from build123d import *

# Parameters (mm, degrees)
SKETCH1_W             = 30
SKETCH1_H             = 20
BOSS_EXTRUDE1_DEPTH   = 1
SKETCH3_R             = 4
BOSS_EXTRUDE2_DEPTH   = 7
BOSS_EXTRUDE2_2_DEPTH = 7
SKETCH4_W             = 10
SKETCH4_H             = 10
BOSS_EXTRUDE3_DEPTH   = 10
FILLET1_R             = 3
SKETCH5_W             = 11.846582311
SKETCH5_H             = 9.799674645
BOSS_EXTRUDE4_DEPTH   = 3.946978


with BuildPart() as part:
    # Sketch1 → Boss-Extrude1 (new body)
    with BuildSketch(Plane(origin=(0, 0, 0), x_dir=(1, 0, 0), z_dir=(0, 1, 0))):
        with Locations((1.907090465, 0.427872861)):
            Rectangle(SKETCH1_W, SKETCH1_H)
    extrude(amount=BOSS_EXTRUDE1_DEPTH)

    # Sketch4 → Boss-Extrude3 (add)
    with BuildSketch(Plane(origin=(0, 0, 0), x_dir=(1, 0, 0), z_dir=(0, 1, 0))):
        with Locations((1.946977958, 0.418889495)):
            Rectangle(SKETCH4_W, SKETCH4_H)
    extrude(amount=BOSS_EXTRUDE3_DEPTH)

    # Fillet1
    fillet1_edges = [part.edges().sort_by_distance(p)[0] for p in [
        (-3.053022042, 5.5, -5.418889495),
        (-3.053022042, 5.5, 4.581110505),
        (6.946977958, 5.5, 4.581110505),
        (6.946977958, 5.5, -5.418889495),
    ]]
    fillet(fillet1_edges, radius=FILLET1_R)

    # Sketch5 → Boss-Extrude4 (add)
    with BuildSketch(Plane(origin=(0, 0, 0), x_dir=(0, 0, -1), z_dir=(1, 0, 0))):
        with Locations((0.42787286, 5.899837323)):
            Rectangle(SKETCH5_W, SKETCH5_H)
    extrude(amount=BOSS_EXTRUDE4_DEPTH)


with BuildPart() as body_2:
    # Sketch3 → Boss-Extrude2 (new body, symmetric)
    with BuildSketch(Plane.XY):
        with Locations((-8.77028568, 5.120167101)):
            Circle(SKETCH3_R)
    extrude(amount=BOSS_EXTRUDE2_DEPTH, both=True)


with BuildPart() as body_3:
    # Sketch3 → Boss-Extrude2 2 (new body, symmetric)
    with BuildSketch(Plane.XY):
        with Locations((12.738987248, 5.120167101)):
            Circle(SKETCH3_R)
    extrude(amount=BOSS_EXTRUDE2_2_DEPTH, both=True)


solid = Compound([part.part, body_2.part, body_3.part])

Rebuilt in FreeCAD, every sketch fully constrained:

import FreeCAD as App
import Part
import Sketcher


def edges_at(feature, points):
    """Names of the edges that pass closest to the given points."""
    edges = feature.Shape.Edges
    near = lambda p: min(range(len(edges)), key=lambda i: edges[i].distToShape(Part.Vertex(*p))[0])
    return sorted({f"Edge{near(p) + 1}" for p in points})

doc = App.newDocument("Part")
body = doc.addObject("PartDesign::Body", "Body")

# Sketch on XZ plane
sketch1 = doc.addObject("Sketcher::SketchObject", "Sketch")
body.addObject(sketch1)
sketch1.AttachmentSupport = (doc.XZ_Plane, [""])
sketch1.MapMode = "FlatFace"
sketch1.addGeometry(Part.LineSegment(App.Vector(-13.09291, -10.427873, 0), App.Vector(-13.09291, 9.572127, 0)), False)
sketch1.addGeometry(Part.LineSegment(App.Vector(-13.09291, 9.572127, 0), App.Vector(16.90709, 9.572127, 0)), False)
sketch1.addGeometry(Part.LineSegment(App.Vector(16.90709, 9.572127, 0), App.Vector(16.90709, -10.427873, 0)), False)
sketch1.addGeometry(Part.LineSegment(App.Vector(16.90709, -10.427873, 0), App.Vector(-13.09291, -10.427873, 0)), False)
sketch1.addConstraint(Sketcher.Constraint("Coincident", 0, 2, 1, 1))
sketch1.addConstraint(Sketcher.Constraint("Coincident", 1, 2, 2, 1))
sketch1.addConstraint(Sketcher.Constraint("Coincident", 2, 2, 3, 1))
sketch1.addConstraint(Sketcher.Constraint("Coincident", 3, 2, 0, 1))
sketch1.addConstraint(Sketcher.Constraint("Vertical", 0))
sketch1.addConstraint(Sketcher.Constraint("Horizontal", 1))
sketch1.addConstraint(Sketcher.Constraint("Vertical", 2))
sketch1.addConstraint(Sketcher.Constraint("Horizontal", 3))
sketch1.addConstraint(Sketcher.Constraint("DistanceX", 1, 1, 1, 2, 30.0))
sketch1.addConstraint(Sketcher.Constraint("DistanceY", 0, 1, 0, 2, 20.0))
sketch1.addConstraint(Sketcher.Constraint("DistanceX", 0, 2, -1, 1, 13.09291))
sketch1.addConstraint(Sketcher.Constraint("DistanceY", -1, 1, 0, 2, 9.572127))
pad1 = doc.addObject("PartDesign::Pad", "Pad")
body.addObject(pad1)
pad1.Profile = sketch1
pad1.Length = 1
pad1.Reversed = True

# Sketch on XZ plane
sketch2 = doc.addObject("Sketcher::SketchObject", "Sketch001")
body.addObject(sketch2)
sketch2.AttachmentSupport = (doc.XZ_Plane, [""])
sketch2.MapMode = "FlatFace"
sketch2.addGeometry(Part.LineSegment(App.Vector(-3.053022, -5.418889, 0), App.Vector(-3.053022, 4.581111, 0)), False)
sketch2.addGeometry(Part.LineSegment(App.Vector(-3.053022, 4.581111, 0), App.Vector(6.946978, 4.581111, 0)), False)
sketch2.addGeometry(Part.LineSegment(App.Vector(6.946978, 4.581111, 0), App.Vector(6.946978, -5.418889, 0)), False)
sketch2.addGeometry(Part.LineSegment(App.Vector(6.946978, -5.418889, 0), App.Vector(-3.053022, -5.418889, 0)), False)
sketch2.addConstraint(Sketcher.Constraint("Coincident", 0, 2, 1, 1))
sketch2.addConstraint(Sketcher.Constraint("Coincident", 1, 2, 2, 1))
sketch2.addConstraint(Sketcher.Constraint("Coincident", 2, 2, 3, 1))
sketch2.addConstraint(Sketcher.Constraint("Coincident", 3, 2, 0, 1))
sketch2.addConstraint(Sketcher.Constraint("Vertical", 0))
sketch2.addConstraint(Sketcher.Constraint("Horizontal", 1))
sketch2.addConstraint(Sketcher.Constraint("Vertical", 2))
sketch2.addConstraint(Sketcher.Constraint("Horizontal", 3))
sketch2.addConstraint(Sketcher.Constraint("Equal", 3, 0))
sketch2.addConstraint(Sketcher.Constraint("DistanceX", 1, 1, 1, 2, 10.0))
sketch2.addConstraint(Sketcher.Constraint("DistanceY", -1, 1, 0, 2, 4.581111))
sketch2.addConstraint(Sketcher.Constraint("DistanceX", 0, 2, -1, 1, 3.053022))
pad2 = doc.addObject("PartDesign::Pad", "Pad001")
body.addObject(pad2)
pad2.Profile = sketch2
pad2.Length = 10
pad2.Reversed = True
doc.recompute()

fillet = doc.addObject("PartDesign::Fillet", "Fillet")
body.addObject(fillet)
fillet.Base = (pad2, edges_at(pad2, [
    (-3.053, 5.5, -5.419),
    (-3.053, 5.5, 4.581),
    (6.947, 5.5, 4.581),
    (6.947, 5.5, -5.419),
]))
fillet.Radius = 3

# Sketch on YZ plane
sketch3 = doc.addObject("Sketcher::SketchObject", "Sketch002")
body.addObject(sketch3)
sketch3.AttachmentSupport = (doc.YZ_Plane, [""])
sketch3.MapMode = "FlatFace"
sketch3.addGeometry(Part.LineSegment(App.Vector(10.799675, 5.495418, 0), App.Vector(1, 5.495418, 0)), False)
sketch3.addGeometry(Part.LineSegment(App.Vector(1, 5.495418, 0), App.Vector(1, -6.351164, 0)), False)
sketch3.addGeometry(Part.LineSegment(App.Vector(1, -6.351164, 0), App.Vector(10.799675, -6.351164, 0)), False)
sketch3.addGeometry(Part.LineSegment(App.Vector(10.799675, -6.351164, 0), App.Vector(10.799675, 5.495418, 0)), False)
sketch3.addConstraint(Sketcher.Constraint("Coincident", 0, 2, 1, 1))
sketch3.addConstraint(Sketcher.Constraint("Coincident", 1, 2, 2, 1))
sketch3.addConstraint(Sketcher.Constraint("Coincident", 2, 2, 3, 1))
sketch3.addConstraint(Sketcher.Constraint("Coincident", 3, 2, 0, 1))
sketch3.addConstraint(Sketcher.Constraint("Horizontal", 0))
sketch3.addConstraint(Sketcher.Constraint("Vertical", 1))
sketch3.addConstraint(Sketcher.Constraint("Horizontal", 2))
sketch3.addConstraint(Sketcher.Constraint("Vertical", 3))
sketch3.addConstraint(Sketcher.Constraint("DistanceX", -1, 1, 0, 2, 1.0))
sketch3.addConstraint(Sketcher.Constraint("DistanceX", 0, 2, 0, 1, 9.799675))
sketch3.addConstraint(Sketcher.Constraint("DistanceY", 1, 2, 1, 1, 11.846582))
sketch3.addConstraint(Sketcher.Constraint("DistanceY", -1, 1, 0, 2, 5.495418))
pad3 = doc.addObject("PartDesign::Pad", "Pad002")
body.addObject(pad3)
pad3.Profile = sketch3
pad3.Length = 3.946978
body2 = doc.addObject("PartDesign::Body", "Body001")

# Sketch on XY plane
sketch4 = doc.addObject("Sketcher::SketchObject", "Sketch003")
body2.addObject(sketch4)
sketch4.AttachmentSupport = (doc.getObject("XY_Plane001"), [""])
sketch4.MapMode = "FlatFace"
sketch4.addGeometry(Part.Circle(App.Vector(-8.770286, 5.120167, 0), App.Vector(0, 0, 1), 4), False)
sketch4.addConstraint(Sketcher.Constraint("Diameter", 0, 8.0))
sketch4.addConstraint(Sketcher.Constraint("DistanceX", 0, 3, -1, 1, 8.770286))
sketch4.addConstraint(Sketcher.Constraint("DistanceY", -1, 1, 0, 3, 5.120167))
pad4 = doc.addObject("PartDesign::Pad", "Pad003")
body2.addObject(pad4)
pad4.Profile = sketch4
pad4.Length = 14
pad4.Midplane = True
body3 = doc.addObject("PartDesign::Body", "Body002")

# Sketch on XY plane
sketch5 = doc.addObject("Sketcher::SketchObject", "Sketch004")
body3.addObject(sketch5)
sketch5.AttachmentSupport = (doc.getObject("XY_Plane002"), [""])
sketch5.MapMode = "FlatFace"
sketch5.addGeometry(Part.Circle(App.Vector(12.738987, 5.120167, 0), App.Vector(0, 0, 1), 4), False)
sketch5.addConstraint(Sketcher.Constraint("Diameter", 0, 8.0))
sketch5.addConstraint(Sketcher.Constraint("DistanceX", -1, 1, 0, 3, 12.738987))
sketch5.addConstraint(Sketcher.Constraint("DistanceY", -1, 1, 0, 3, 5.120167))
pad5 = doc.addObject("PartDesign::Pad", "Pad004")
body3.addObject(pad5)
pad5.Profile = sketch5
pad5.Length = 14
pad5.Midplane = True

doc.recompute()
